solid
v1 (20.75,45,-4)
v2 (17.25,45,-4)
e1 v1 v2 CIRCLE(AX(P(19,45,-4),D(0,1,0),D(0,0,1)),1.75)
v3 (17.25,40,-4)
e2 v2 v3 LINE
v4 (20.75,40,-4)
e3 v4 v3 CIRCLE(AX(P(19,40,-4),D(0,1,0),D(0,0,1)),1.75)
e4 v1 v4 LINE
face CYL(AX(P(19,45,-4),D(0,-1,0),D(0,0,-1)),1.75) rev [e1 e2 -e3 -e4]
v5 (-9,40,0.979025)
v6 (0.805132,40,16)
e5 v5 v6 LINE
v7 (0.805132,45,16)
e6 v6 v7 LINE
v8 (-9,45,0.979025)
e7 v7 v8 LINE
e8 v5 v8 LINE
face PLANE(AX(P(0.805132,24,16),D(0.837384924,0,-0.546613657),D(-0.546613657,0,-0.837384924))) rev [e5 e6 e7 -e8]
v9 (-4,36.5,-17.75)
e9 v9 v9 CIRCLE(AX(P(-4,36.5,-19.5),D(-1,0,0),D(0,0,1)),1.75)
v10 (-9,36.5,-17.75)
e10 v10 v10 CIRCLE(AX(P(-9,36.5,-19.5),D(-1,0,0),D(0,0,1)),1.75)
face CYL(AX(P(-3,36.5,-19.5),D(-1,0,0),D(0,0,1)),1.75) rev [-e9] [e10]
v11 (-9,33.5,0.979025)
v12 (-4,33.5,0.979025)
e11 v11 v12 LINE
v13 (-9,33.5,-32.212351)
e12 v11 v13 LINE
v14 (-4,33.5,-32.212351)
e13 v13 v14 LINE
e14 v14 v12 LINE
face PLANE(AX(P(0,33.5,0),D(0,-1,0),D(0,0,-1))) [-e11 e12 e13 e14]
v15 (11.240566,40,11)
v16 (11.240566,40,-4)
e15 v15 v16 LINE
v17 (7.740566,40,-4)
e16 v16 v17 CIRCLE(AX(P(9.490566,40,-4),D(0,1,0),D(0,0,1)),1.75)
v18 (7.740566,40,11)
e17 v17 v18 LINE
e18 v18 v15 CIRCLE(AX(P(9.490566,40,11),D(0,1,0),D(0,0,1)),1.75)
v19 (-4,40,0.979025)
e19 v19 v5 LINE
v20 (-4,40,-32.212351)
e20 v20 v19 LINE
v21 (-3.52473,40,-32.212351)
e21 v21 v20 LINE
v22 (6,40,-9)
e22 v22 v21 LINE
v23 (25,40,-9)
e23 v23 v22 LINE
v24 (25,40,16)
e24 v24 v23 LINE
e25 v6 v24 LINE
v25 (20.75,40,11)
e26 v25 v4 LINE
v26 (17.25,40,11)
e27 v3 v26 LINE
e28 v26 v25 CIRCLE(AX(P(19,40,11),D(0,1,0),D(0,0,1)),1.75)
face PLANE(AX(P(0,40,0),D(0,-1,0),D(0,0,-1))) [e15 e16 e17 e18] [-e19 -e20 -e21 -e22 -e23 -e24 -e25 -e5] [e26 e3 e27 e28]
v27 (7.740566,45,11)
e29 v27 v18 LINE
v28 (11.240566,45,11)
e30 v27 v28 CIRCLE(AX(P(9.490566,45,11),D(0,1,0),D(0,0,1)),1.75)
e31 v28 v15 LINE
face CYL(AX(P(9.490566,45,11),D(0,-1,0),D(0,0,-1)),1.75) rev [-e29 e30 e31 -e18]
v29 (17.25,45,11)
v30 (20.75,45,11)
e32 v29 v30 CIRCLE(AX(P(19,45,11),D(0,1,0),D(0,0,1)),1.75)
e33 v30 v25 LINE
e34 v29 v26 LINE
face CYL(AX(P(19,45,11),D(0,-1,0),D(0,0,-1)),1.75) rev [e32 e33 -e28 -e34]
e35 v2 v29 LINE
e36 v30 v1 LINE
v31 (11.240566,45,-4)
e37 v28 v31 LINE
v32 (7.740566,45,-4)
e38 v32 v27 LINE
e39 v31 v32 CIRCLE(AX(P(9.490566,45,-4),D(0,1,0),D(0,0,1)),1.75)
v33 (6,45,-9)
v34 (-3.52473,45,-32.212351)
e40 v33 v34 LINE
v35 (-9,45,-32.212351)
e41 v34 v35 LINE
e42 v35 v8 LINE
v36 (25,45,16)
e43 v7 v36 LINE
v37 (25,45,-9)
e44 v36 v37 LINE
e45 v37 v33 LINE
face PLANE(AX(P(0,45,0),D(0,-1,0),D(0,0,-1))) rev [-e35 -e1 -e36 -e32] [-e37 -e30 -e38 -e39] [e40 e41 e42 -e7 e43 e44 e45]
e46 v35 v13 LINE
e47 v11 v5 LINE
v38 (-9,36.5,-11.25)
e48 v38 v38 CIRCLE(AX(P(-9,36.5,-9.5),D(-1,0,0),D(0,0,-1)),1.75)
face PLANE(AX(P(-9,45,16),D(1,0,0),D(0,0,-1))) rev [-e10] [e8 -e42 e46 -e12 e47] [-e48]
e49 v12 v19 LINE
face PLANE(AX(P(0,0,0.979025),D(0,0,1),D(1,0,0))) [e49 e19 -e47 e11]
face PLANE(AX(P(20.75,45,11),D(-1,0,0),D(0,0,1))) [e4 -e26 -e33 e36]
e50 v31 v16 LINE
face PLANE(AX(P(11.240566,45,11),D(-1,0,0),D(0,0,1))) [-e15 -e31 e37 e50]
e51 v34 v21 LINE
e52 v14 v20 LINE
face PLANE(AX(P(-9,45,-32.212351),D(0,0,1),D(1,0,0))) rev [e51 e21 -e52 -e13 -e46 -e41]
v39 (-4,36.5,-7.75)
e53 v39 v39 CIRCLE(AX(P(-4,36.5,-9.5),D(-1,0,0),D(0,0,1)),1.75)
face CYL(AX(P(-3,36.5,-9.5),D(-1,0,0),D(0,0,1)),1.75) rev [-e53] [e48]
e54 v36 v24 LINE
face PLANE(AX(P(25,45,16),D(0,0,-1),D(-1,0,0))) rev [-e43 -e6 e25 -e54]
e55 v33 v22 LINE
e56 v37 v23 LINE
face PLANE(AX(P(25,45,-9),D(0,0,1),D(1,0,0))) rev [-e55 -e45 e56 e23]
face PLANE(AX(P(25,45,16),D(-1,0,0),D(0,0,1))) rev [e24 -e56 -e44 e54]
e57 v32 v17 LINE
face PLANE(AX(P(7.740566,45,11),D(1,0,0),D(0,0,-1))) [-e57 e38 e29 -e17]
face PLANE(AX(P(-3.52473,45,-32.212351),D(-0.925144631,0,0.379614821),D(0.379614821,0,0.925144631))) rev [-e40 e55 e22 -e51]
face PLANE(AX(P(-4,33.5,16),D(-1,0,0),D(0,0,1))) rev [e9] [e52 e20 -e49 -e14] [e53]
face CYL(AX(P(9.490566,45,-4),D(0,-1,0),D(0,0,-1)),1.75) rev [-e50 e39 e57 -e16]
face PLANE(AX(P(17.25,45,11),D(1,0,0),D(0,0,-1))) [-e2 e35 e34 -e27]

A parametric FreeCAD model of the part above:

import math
import FreeCAD as App
import Part
import Sketcher
Q = App.Units.Quantity

doc = App.newDocument("Part")
params = doc.addObject("Spreadsheet::Sheet", "Params")
for row, (alias, value) in enumerate([
    ("sketch1_width", "34 mm"),
    ("sketch1_width2", "19 mm"),
    ("sketch1_height", "25 mm"),
    ("sketch1_height2", "15 mm"),
    ("sketch1_radius", "1.75 mm"),
    ("pad1_length", "5 mm"),
    ("sketch2_width", "5 mm"),
    ("pad2_length", "6.5 mm"),
    ("sketch3_diameter", "3.5 mm"),
    ("pocket1_length", "6 mm"),
    ("pocket2_length", "21 mm"),
    ("sketch5_width", "5 mm"),
    ("sketch5_height", "6.5 mm"),
    ("pocket3_length", "21 mm"),
], start=1):
    params.set(f"A{row}", alias)
    params.set(f"B{row}", "=" + value)
    params.setAlias(f"B{row}", alias)

body = doc.addObject("PartDesign::Body", "Body")

sketch1 = body.newObject("Sketcher::SketchObject", "Sketch")
sketch1.AttachmentSupport = (doc.getObject("XZ_Plane"), [""])
sketch1.MapMode = "FlatFace"
sketch1.AttachmentOffset = App.Placement(App.Vector(0, 0, -40), App.Rotation())
sketch1.addGeometry([
    Part.LineSegment(App.Vector(-9, 16, 0), App.Vector(25, 16, 0)),
    Part.LineSegment(App.Vector(25, 16, 0), App.Vector(25, -9, 0)),
    Part.LineSegment(App.Vector(25, -9, 0), App.Vector(6, -9, 0)),
    Part.LineSegment(App.Vector(6, -9, 0), App.Vector(-3.5, -32.2, 0)),
    Part.LineSegment(App.Vector(-3.5, -32.2, 0), App.Vector(-9, -32.2, 0)),
    Part.LineSegment(App.Vector(-9, -32.2, 0), App.Vector(-9, 16, 0)),
    Part.LineSegment(App.Vector(17.2, 11, 0), App.Vector(17.2, -4, 0)),
    Part.ArcOfCircle(Part.Circle(App.Vector(19, -4, 0), App.Vector(0, 0, 1), 1.8), math.radians(180), math.radians(360)),
    Part.LineSegment(App.Vector(20.8, -4, 0), App.Vector(20.8, 11, 0)),
    Part.ArcOfCircle(Part.Circle(App.Vector(19, 11, 0), App.Vector(0, 0, 1), 1.8), math.radians(0), math.radians(180)),
    Part.LineSegment(App.Vector(7.7, 11, 0), App.Vector(7.7, -4, 0)),
    Part.ArcOfCircle(Part.Circle(App.Vector(9.5, -4, 0), App.Vector(0, 0, 1), 1.8), math.radians(180), math.radians(360)),
    Part.LineSegment(App.Vector(11.2, -4, 0), App.Vector(11.2, 11, 0)),
    Part.ArcOfCircle(Part.Circle(App.Vector(9.5, 11, 0), App.Vector(0, 0, 1), 1.8), math.radians(0), math.radians(180)),
], False)
sketch1.addConstraint([
    Sketcher.Constraint("Coincident", 0, 2, 1, 1),
    Sketcher.Constraint("Coincident", 1, 2, 2, 1),
    Sketcher.Constraint("Coincident", 2, 2, 3, 1),
    Sketcher.Constraint("Coincident", 3, 2, 4, 1),
    Sketcher.Constraint("Coincident", 4, 2, 5, 1),
    Sketcher.Constraint("Coincident", 5, 2, 0, 1),
    Sketcher.Constraint("Tangent", 6, 2, 7, 1),
    Sketcher.Constraint("Tangent", 7, 2, 8, 1),
    Sketcher.Constraint("Tangent", 8, 2, 9, 1),
    Sketcher.Constraint("Tangent", 9, 2, 6, 1),
    Sketcher.Constraint("Tangent", 10, 2, 11, 1),
    Sketcher.Constraint("Tangent", 11, 2, 12, 1),
    Sketcher.Constraint("Tangent", 12, 2, 13, 1),
    Sketcher.Constraint("Tangent", 13, 2, 10, 1),
    Sketcher.Constraint("Horizontal", 0),
    Sketcher.Constraint("Vertical", 1),
    Sketcher.Constraint("Horizontal", 2),
    Sketcher.Constraint("Horizontal", 4),
    Sketcher.Constraint("Vertical", 5),
    Sketcher.Constraint("Vertical", 6),
    Sketcher.Constraint("Vertical", 8),
    Sketcher.Constraint("Vertical", 10),
    Sketcher.Constraint("Vertical", 12),
    Sketcher.Constraint("Equal", 9, 11),
    Sketcher.Constraint("Horizontal", 7, 3, 11, 3),
    Sketcher.Constraint("Horizontal", 9, 3, 13, 3),
    Sketcher.Constraint("DistanceX", 0, 1, 0, 2, Q("34 mm")),
    Sketcher.Constraint("DistanceX", 2, 2, 2, 1, Q("19 mm")),
    Sketcher.Constraint("DistanceY", 1, 2, 1, 1, Q("25 mm")),
    Sketcher.Constraint("DistanceY", 6, 2, 6, 1, Q("15 mm")),
    Sketcher.Constraint("Radius", 7, Q("1.75 mm")),
    Sketcher.Constraint("DistanceX", -1, 1, 7, 3, Q("19 mm")),
    Sketcher.Constraint("DistanceY", 7, 3, -1, 1, Q("4 mm")),
    Sketcher.Constraint("DistanceX", -1, 1, 0, 2, Q("25 mm")),
    Sketcher.Constraint("DistanceY", -1, 1, 0, 2, Q("16 mm")),
    Sketcher.Constraint("DistanceX", 4, 2, 4, 1, Q("5.47527 mm")),
    Sketcher.Constraint("DistanceY", 5, 1, 5, 2, Q("48.212351 mm")),
    Sketcher.Constraint("DistanceX", -1, 1, 11, 3, Q("9.490566 mm")),
])
sketch1.setExpression("Constraints[26]", "Params.sketch1_width")
sketch1.setExpression("Constraints[27]", "Params.sketch1_width2")
sketch1.setExpression("Constraints[28]", "Params.sketch1_height")
sketch1.setExpression("Constraints[29]", "Params.sketch1_height2")
sketch1.setExpression("Constraints[30]", "Params.sketch1_radius")
pad1 = body.newObject("PartDesign::Pad", "Pad")
pad1.Profile = sketch1
pad1.setExpression("Length", "Params.pad1_length")
pad1.Reversed = True

sketch2 = body.newObject("Sketcher::SketchObject", "Sketch001")
sketch2.AttachmentSupport = (doc.getObject("XZ_Plane"), [""])
sketch2.MapMode = "FlatFace"
sketch2.AttachmentOffset = App.Placement(App.Vector(0, 0, -40), App.Rotation())
sketch2.addGeometry([
    Part.LineSegment(App.Vector(-9, 16, 0), App.Vector(-9, -32, 0)),
    Part.LineSegment(App.Vector(-9, -32, 0), App.Vector(-4, -32, 0)),
    Part.LineSegment(App.Vector(-4, -32, 0), App.Vector(-4, 16, 0)),
    Part.LineSegment(App.Vector(-4, 16, 0), App.Vector(-9, 16, 0)),
], False)
sketch2.addConstraint([
    Sketcher.Constraint("Coincident", 0, 2, 1, 1),
    Sketcher.Constraint("Coincident", 1, 2, 2, 1),
    Sketcher.Constraint("Coincident", 2, 2, 3, 1),
    Sketcher.Constraint("Coincident", 3, 2, 0, 1),
    Sketcher.Constraint("Vertical", 0),
    Sketcher.Constraint("Horizontal", 1),
    Sketcher.Constraint("Vertical", 2),
    Sketcher.Constraint("Horizontal", 3),
    Sketcher.Constraint("DistanceX", 1, 1, 1, 2, Q("5 mm")),
    Sketcher.Constraint("DistanceX", 0, 2, -1, 1, Q("9 mm")),
    Sketcher.Constraint("DistanceY", -1, 1, 2, 2, Q("16 mm")),
    Sketcher.Constraint("DistanceY", 0, 2, 0, 1, Q("48.212351 mm")),
])
sketch2.setExpression("Constraints[8]", "Params.sketch2_width")
pad2 = body.newObject("PartDesign::Pad", "Pad001")
pad2.Profile = sketch2
pad2.setExpression("Length", "Params.pad2_length")

sketch3 = body.newObject("Sketcher::SketchObject", "Sketch002")
sketch3.AttachmentSupport = (doc.getObject("YZ_Plane"), [""])
sketch3.MapMode = "FlatFace"
sketch3.AttachmentOffset = App.Placement(App.Vector(0, 0, -9), App.Rotation())
sketch3.addGeometry([
    Part.Circle(App.Vector(36.5, -19.5, 0), App.Vector(0, 0, 1), 1.8),
    Part.Circle(App.Vector(36.5, -9.5, 0), App.Vector(0, 0, 1), 1.8),
], False)
sketch3.addConstraint([
    Sketcher.Constraint("Equal", 0, 1),
    Sketcher.Constraint("Vertical", 0, 3, 1, 3),
    Sketcher.Constraint("Diameter", 0, Q("3.5 mm")),
    Sketcher.Constraint("DistanceY", 0, 3, 1, 3, Q("10 mm")),
    Sketcher.Constraint("DistanceX", -1, 1, 0, 3, Q("36.5 mm")),
    Sketcher.Constraint("DistanceY", 0, 3, -1, 1, Q("19.5 mm")),
])
sketch3.setExpression("Constraints[2]", "Params.sketch3_diameter")
pocket1 = body.newObject("PartDesign::Pocket", "Pocket")
pocket1.Profile = sketch3
pocket1.setExpression("Length", "Params.pocket1_length")
pocket1.Reversed = True

sketch4 = body.newObject("Sketcher::SketchObject", "Sketch003")
sketch4.AttachmentSupport = (doc.getObject("XZ_Plane"), [""])
sketch4.MapMode = "FlatFace"
sketch4.AttachmentOffset = App.Placement(App.Vector(0, 0, -45), App.Rotation())
sketch4.addGeometry([
    Part.LineSegment(App.Vector(1, 16, 0), App.Vector(-9, 1, 0)),
    Part.LineSegment(App.Vector(-9, 1, 0), App.Vector(-9, 16, 0)),
    Part.LineSegment(App.Vector(-9, 16, 0), App.Vector(1, 16, 0)),
], False)
sketch4.addConstraint([
    Sketcher.Constraint("Coincident", 0, 2, 1, 1),
    Sketcher.Constraint("Coincident", 1, 2, 2, 1),
    Sketcher.Constraint("Coincident", 2, 2, 0, 1),
    Sketcher.Constraint("Vertical", 1),
    Sketcher.Constraint("Horizontal", 2),
    Sketcher.Constraint("DistanceX", 0, 2, -1, 1, Q("9 mm")),
    Sketcher.Constraint("DistanceY", -1, 1, 1, 2, Q("16 mm")),
    Sketcher.Constraint("DistanceX", 2, 1, 2, 2, Q("9.805132 mm")),
    Sketcher.Constraint("DistanceY", 1, 1, 1, 2, Q("15.020975 mm")),
])
pocket2 = body.newObject("PartDesign::Pocket", "Pocket001")
pocket2.Profile = sketch4
pocket2.setExpression("Length", "Params.pocket2_length")
pocket2.Reversed = True

sketch5 = body.newObject("Sketcher::SketchObject", "Sketch004")
sketch5.AttachmentSupport = (doc.getObject("XY_Plane"), [""])
sketch5.MapMode = "FlatFace"
sketch5.AttachmentOffset = App.Placement(App.Vector(0, 0, 0.979025), App.Rotation())
sketch5.addGeometry([
    Part.LineSegment(App.Vector(-9, 40, 0), App.Vector(-9, 34, 0)),
    Part.LineSegment(App.Vector(-9, 34, 0), App.Vector(-4, 34, 0)),
    Part.LineSegment(App.Vector(-4, 34, 0), App.Vector(-4, 40, 0)),
    Part.LineSegment(App.Vector(-4, 40, 0), App.Vector(-9, 40, 0)),
], False)
sketch5.addConstraint([
    Sketcher.Constraint("Coincident", 0, 2, 1, 1),
    Sketcher.Constraint("Coincident", 1, 2, 2, 1),
    Sketcher.Constraint("Coincident", 2, 2, 3, 1),
    Sketcher.Constraint("Coincident", 3, 2, 0, 1),
    Sketcher.Constraint("Vertical", 0),
    Sketcher.Constraint("Horizontal", 1),
    Sketcher.Constraint("Vertical", 2),
    Sketcher.Constraint("Horizontal", 3),
    Sketcher.Constraint("DistanceX", 1, 1, 1, 2, Q("5 mm")),
    Sketcher.Constraint("DistanceY", 0, 2, 0, 1, Q("6.5 mm")),
    Sketcher.Constraint("DistanceX", 0, 2, -1, 1, Q("9 mm")),
    Sketcher.Constraint("DistanceY", -1, 1, 2, 2, Q("40 mm")),
])
sketch5.setExpression("Constraints[8]", "Params.sketch5_width")
sketch5.setExpression("Constraints[9]", "Params.sketch5_height")
pocket3 = body.newObject("PartDesign::Pocket", "Pocket002")
pocket3.Profile = sketch5
pocket3.setExpression("Length", "Params.pocket3_length")
pocket3.Reversed = True

doc.recompute()
